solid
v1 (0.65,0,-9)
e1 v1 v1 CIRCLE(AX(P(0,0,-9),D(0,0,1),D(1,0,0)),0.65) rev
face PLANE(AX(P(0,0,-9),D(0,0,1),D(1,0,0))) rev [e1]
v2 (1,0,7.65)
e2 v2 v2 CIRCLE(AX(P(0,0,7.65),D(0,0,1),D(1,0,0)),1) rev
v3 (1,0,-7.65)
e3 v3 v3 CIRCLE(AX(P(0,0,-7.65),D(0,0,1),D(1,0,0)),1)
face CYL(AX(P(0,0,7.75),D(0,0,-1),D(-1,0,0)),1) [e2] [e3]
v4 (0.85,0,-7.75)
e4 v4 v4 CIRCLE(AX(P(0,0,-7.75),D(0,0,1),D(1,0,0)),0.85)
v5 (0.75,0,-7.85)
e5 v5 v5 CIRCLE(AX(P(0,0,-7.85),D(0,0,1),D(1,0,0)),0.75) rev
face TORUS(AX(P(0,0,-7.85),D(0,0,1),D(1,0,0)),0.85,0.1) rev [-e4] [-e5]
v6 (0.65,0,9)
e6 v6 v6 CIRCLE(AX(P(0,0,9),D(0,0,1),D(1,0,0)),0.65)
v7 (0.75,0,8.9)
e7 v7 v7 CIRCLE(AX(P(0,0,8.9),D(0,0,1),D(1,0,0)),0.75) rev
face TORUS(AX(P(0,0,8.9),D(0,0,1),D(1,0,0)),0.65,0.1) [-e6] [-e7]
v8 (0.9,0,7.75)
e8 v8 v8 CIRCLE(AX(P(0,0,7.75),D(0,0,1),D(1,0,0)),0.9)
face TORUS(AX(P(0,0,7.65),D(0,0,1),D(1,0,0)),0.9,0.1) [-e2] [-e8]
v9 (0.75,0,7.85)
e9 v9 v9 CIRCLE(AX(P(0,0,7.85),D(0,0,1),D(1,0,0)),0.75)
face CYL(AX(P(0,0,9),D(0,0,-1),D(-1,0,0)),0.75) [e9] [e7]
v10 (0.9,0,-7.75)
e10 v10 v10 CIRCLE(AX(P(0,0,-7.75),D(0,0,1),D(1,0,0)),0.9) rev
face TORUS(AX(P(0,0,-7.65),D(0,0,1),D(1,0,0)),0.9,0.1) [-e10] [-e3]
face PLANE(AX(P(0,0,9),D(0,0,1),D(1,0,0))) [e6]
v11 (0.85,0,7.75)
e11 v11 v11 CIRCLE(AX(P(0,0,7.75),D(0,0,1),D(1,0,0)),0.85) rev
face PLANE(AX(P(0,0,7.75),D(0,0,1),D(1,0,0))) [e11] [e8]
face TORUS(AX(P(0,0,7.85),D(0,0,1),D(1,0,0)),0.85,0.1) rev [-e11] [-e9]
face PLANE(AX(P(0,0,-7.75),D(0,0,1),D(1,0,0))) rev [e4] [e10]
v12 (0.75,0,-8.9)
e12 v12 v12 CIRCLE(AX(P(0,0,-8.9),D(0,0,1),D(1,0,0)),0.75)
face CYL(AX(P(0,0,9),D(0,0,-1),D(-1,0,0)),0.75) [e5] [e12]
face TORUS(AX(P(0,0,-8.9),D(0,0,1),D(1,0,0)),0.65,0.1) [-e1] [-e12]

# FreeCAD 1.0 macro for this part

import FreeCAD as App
import Part
import Sketcher

V = App.Vector


def edges_at(feature, points):
    """Names of the edges that pass closest to the given points."""
    edges = feature.Shape.Edges
    near = lambda p: min(range(len(edges)), key=lambda i: edges[i].distToShape(Part.Vertex(*p))[0])
    return sorted({f"Edge{near(p) + 1}" for p in points})

doc = App.newDocument("Part")
body = doc.addObject("PartDesign::Body", "Body")

# Sketch on XY plane
sketch1 = doc.addObject("Sketcher::SketchObject", "Sketch")
body.addObject(sketch1)
sketch1.AttachmentSupport = (doc.XY_Plane, [""])
sketch1.MapMode = "FlatFace"
sketch1.addGeometry(Part.Circle(V(0, 0, 0), V(0, 0, 1), 1), False)
sketch1.addConstraint([
    Sketcher.Constraint("Coincident", 0, 3, -1, 1),
    Sketcher.Constraint("Diameter", 0, 2.0),
])
pad1 = doc.addObject("PartDesign::Pad", "Pad")
body.addObject(pad1)
pad1.Profile = sketch1
pad1.Length = 15.5
pad1.Midplane = True

# Sketch on XY plane
sketch2 = doc.addObject("Sketcher::SketchObject", "Sketch001")
body.addObject(sketch2)
sketch2.AttachmentSupport = (doc.XY_Plane, [""])
sketch2.MapMode = "FlatFace"
sketch2.addGeometry(Part.Circle(V(0, 0, 0), V(0, 0, 1), 0.8), False)
sketch2.addConstraint([
    Sketcher.Constraint("Coincident", 0, 3, -1, 1),
    Sketcher.Constraint("Diameter", 0, 1.5),
])
pad2 = doc.addObject("PartDesign::Pad", "Pad001")
body.addObject(pad2)
pad2.Profile = sketch2
pad2.Length = 18
pad2.Midplane = True
doc.recompute()

fillet = doc.addObject("PartDesign::Fillet", "Fillet")
body.addObject(fillet)
fillet.Base = (pad2, edges_at(pad2, [
    (-1, 0, -7.75),
    (-1, 0, 7.75),
    (-0.75, 0, -7.75),
    (-0.75, 0, 7.75),
    (-0.75, 0, -9),
    (-0.75, 0, 9),
]))
fillet.Radius = 0.1

doc.recompute()
